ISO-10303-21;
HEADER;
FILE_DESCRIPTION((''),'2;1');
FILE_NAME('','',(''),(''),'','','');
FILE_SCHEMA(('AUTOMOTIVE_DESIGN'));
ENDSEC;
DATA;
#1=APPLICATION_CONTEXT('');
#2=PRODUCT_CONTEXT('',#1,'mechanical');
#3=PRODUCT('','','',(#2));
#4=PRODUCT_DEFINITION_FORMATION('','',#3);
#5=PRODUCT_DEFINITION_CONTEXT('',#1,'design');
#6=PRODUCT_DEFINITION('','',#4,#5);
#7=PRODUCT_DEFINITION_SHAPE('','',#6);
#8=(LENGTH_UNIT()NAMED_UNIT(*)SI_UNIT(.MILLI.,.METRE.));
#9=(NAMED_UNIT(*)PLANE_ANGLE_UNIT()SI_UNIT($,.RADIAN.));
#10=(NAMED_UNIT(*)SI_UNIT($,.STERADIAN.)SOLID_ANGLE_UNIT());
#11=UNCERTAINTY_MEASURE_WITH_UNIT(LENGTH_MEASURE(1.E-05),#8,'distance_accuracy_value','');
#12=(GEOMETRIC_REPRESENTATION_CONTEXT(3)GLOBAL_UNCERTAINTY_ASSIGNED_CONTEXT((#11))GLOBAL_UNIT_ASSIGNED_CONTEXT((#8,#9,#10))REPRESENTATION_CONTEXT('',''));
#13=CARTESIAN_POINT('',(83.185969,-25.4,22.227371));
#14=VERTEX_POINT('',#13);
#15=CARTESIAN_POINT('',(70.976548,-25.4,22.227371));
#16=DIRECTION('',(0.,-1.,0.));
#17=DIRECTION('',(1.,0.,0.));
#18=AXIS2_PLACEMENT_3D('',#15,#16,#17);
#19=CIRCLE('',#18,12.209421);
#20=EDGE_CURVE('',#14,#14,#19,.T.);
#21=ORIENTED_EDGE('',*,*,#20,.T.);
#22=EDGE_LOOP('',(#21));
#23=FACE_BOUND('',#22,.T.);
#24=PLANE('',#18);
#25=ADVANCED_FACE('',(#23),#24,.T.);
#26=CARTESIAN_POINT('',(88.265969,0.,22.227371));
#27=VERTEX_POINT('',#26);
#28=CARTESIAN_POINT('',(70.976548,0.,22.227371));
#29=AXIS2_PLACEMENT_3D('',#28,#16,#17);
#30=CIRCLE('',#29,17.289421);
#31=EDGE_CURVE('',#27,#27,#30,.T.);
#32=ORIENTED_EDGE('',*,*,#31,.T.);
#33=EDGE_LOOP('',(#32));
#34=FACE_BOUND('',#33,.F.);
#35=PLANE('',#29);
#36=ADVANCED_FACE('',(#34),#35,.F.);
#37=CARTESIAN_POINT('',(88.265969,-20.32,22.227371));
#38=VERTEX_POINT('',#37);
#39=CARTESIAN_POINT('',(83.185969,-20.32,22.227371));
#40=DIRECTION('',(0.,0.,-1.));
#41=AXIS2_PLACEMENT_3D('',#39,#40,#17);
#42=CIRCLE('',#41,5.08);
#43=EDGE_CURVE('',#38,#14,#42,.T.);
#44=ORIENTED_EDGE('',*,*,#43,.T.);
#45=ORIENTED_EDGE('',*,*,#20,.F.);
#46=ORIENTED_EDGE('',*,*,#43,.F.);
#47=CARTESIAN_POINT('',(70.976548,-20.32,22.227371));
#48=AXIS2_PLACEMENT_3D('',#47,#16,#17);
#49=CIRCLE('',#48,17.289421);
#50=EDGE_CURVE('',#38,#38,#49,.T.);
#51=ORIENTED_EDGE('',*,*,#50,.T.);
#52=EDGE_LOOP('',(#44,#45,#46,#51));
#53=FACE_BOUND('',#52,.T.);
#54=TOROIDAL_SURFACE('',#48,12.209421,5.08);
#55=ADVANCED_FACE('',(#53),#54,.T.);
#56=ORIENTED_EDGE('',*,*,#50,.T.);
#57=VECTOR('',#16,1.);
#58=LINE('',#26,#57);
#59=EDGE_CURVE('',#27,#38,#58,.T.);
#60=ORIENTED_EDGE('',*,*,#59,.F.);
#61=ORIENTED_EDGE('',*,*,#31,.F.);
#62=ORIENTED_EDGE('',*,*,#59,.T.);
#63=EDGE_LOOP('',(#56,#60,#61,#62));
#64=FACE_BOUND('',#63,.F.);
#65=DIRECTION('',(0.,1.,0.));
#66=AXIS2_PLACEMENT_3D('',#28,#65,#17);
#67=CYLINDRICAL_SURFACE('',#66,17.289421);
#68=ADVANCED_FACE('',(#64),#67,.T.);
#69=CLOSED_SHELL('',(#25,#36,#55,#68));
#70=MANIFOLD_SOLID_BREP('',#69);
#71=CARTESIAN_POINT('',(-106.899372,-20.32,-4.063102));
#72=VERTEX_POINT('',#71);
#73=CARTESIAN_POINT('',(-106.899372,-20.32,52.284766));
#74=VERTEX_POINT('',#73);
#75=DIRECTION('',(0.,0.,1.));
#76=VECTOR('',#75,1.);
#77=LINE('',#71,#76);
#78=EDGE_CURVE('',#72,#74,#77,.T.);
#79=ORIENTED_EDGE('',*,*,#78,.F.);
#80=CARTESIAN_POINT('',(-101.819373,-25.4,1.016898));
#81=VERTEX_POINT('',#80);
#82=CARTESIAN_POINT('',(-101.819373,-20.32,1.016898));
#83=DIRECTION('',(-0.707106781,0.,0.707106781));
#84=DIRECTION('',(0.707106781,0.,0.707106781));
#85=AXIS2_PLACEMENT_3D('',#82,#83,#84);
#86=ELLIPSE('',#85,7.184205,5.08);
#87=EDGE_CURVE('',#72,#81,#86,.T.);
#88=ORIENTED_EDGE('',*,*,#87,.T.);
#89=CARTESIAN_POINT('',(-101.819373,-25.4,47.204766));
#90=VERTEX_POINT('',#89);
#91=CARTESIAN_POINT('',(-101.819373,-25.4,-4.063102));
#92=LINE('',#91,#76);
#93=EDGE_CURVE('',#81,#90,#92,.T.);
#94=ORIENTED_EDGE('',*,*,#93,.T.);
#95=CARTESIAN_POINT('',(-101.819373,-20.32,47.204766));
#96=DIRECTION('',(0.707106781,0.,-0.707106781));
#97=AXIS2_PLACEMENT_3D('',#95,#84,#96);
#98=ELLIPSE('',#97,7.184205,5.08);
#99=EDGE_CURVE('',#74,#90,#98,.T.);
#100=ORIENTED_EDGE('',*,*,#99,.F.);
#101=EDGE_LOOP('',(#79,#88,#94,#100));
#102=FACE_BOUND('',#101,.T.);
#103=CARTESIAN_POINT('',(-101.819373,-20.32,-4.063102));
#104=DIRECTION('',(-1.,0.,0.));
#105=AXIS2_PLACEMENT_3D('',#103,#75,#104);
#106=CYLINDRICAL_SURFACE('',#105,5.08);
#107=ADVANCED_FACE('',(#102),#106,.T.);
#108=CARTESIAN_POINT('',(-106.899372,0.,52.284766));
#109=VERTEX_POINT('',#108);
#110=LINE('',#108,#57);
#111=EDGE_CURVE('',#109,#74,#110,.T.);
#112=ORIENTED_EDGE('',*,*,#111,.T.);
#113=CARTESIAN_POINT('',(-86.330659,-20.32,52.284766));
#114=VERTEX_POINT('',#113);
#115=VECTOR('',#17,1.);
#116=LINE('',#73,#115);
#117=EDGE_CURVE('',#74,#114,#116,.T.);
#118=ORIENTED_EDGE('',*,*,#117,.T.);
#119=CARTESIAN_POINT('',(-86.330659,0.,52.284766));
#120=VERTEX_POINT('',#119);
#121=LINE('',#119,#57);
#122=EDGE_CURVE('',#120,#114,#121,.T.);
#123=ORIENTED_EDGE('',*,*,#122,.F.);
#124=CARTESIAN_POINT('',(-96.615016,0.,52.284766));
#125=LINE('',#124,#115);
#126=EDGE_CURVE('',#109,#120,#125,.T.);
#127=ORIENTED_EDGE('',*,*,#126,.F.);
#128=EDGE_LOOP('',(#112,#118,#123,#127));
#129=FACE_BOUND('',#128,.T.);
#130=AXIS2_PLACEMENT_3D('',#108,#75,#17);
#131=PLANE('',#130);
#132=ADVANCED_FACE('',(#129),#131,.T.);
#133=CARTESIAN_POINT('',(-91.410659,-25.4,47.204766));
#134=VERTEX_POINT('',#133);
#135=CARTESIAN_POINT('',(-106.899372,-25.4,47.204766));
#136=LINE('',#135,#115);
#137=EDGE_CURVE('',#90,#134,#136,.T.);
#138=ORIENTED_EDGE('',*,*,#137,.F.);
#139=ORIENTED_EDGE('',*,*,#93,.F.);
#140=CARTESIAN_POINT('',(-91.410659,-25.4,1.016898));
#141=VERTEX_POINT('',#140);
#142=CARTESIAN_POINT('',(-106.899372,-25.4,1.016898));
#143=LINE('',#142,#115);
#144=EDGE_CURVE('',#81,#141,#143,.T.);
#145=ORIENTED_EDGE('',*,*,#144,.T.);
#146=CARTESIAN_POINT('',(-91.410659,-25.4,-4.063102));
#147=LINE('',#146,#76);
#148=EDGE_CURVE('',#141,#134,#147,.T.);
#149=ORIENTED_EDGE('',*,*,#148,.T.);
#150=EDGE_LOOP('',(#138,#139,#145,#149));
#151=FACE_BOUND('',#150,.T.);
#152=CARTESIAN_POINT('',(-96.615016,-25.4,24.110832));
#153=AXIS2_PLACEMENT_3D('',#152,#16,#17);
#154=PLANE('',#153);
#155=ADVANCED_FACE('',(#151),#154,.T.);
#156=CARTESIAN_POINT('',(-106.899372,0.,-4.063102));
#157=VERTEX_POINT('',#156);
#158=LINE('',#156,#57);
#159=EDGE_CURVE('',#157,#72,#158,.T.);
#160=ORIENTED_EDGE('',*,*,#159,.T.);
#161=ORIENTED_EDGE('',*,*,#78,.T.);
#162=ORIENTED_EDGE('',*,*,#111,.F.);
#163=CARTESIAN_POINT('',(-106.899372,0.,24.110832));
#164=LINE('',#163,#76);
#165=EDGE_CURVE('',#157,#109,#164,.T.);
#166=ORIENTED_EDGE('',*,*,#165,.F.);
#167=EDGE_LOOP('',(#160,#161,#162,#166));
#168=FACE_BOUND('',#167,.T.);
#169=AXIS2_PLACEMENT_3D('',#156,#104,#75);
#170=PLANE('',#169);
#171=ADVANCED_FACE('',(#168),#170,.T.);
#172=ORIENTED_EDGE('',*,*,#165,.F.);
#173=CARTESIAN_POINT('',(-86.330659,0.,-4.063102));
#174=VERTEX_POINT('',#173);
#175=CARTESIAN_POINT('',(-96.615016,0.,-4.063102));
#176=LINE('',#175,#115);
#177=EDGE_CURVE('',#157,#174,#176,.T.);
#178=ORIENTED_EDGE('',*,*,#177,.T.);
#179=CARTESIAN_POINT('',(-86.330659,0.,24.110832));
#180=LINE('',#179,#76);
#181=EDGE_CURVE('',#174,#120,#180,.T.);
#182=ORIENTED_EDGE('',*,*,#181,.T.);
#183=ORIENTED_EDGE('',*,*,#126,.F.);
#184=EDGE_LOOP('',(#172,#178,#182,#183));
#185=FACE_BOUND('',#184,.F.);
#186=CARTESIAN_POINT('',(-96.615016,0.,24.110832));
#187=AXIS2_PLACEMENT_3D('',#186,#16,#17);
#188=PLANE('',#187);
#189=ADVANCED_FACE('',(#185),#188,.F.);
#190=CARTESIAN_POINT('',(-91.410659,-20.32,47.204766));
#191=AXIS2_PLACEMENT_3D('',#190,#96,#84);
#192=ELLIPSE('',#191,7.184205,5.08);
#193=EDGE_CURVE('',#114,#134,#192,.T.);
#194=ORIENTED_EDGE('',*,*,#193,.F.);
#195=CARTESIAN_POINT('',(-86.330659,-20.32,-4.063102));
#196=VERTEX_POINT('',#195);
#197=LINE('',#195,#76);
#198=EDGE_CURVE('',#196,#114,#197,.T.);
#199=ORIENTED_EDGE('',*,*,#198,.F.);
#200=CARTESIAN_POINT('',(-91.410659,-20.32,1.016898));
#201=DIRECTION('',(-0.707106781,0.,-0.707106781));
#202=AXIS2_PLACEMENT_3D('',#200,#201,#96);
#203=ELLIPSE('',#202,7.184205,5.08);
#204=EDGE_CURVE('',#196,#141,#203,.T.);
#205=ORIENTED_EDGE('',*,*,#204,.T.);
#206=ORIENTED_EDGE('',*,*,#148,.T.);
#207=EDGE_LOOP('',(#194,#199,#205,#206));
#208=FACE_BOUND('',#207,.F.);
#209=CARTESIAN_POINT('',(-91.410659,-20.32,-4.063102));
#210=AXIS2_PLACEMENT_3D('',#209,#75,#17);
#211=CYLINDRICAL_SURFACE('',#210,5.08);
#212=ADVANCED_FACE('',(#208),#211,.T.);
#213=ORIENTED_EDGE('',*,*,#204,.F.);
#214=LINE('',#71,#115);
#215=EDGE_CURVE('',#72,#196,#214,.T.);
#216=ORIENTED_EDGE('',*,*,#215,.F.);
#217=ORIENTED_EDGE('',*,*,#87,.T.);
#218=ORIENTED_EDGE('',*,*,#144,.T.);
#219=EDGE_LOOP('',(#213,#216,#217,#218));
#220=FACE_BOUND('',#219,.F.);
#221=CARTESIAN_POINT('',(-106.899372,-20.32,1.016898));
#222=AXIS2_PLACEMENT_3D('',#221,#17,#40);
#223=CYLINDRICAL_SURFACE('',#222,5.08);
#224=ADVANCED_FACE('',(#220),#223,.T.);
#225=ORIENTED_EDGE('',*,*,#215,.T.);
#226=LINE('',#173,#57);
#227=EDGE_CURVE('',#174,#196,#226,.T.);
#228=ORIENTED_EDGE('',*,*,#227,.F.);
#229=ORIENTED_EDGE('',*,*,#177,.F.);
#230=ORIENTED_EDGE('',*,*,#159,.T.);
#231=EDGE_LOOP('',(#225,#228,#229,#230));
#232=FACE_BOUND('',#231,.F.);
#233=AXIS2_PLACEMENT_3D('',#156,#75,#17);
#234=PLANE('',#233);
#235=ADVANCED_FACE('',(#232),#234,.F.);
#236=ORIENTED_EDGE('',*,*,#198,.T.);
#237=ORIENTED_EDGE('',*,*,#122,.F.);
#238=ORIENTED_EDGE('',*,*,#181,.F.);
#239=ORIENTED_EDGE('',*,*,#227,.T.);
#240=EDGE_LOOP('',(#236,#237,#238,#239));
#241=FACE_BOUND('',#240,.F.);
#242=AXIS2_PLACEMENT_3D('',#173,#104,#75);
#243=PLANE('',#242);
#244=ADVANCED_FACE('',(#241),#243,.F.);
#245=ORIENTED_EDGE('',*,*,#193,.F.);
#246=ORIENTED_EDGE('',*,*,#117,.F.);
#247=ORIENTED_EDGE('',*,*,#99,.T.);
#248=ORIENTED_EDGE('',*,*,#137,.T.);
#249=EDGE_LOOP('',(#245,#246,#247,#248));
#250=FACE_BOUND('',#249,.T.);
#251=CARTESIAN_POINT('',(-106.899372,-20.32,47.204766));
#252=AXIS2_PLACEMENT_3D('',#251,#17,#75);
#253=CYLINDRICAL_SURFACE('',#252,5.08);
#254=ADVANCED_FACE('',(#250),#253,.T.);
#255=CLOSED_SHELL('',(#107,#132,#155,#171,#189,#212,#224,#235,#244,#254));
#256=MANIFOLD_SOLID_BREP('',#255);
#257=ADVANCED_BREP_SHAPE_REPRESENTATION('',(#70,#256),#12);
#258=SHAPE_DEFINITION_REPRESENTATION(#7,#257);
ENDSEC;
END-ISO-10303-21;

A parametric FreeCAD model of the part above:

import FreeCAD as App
import Part
import Sketcher
Q = App.Units.Quantity


def edges_at(feature, points):
    """Names of the edges that pass closest to the given points."""
    edges = feature.Shape.Edges
    near = lambda p: min(range(len(edges)), key=lambda i: edges[i].distToShape(Part.Vertex(*p))[0])
    return sorted({f"Edge{near(p) + 1}" for p in points})

doc = App.newDocument("Part")
body = doc.addObject("PartDesign::Body", "Body")
body.AllowCompound = True

sketch1 = body.newObject("Sketcher::SketchObject", "Sketch")
sketch1.AttachmentSupport = (doc.getObject("XZ_Plane"), [""])
sketch1.MapMode = "FlatFace"
sketch1.addGeometry([
    Part.LineSegment(App.Vector(-107, 52, 0), App.Vector(-107, -4, 0)),
    Part.LineSegment(App.Vector(-107, -4, 0), App.Vector(-86, -4, 0)),
    Part.LineSegment(App.Vector(-86, -4, 0), App.Vector(-86, 52, 0)),
    Part.LineSegment(App.Vector(-86, 52, 0), App.Vector(-107, 52, 0)),
    Part.Circle(App.Vector(71, 22, 0), App.Vector(0, 0, 1), 17),
], False)
sketch1.addConstraint([
    Sketcher.Constraint("Coincident", 0, 2, 1, 1),
    Sketcher.Constraint("Coincident", 1, 2, 2, 1),
    Sketcher.Constraint("Coincident", 2, 2, 3, 1),
    Sketcher.Constraint("Coincident", 3, 2, 0, 1),
    Sketcher.Constraint("Vertical", 0),
    Sketcher.Constraint("Horizontal", 1),
    Sketcher.Constraint("Vertical", 2),
    Sketcher.Constraint("Horizontal", 3),
    Sketcher.Constraint("Diameter", 4, Q("34.578842 mm")),
    Sketcher.Constraint("DistanceY", 0, 2, -1, 1, Q("4.063102 mm")),
    Sketcher.Constraint("DistanceX", 1, 1, 1, 2, Q("20.568713 mm")),
    Sketcher.Constraint("DistanceY", 0, 2, 0, 1, Q("56.347868 mm")),
    Sketcher.Constraint("DistanceY", -1, 1, 4, 3, Q("22.227371 mm")),
    Sketcher.Constraint("DistanceX", 1, 2, -1, 1, Q("86.330659 mm")),
    Sketcher.Constraint("DistanceX", 0, 2, 4, 3, Q("177.875921 mm")),
])
pad1 = body.newObject("PartDesign::Pad", "Pad")
pad1.Profile = sketch1
pad1.Length = Q("1 in")
doc.recompute()

fillet = body.newObject("PartDesign::Fillet", "Fillet")
fillet.Base = (pad1, edges_at(pad1, [
    (-96.615, -25.4, 52.285),
    (-106.899, -25.4, 24.111),
    (-96.615, -25.4, -4.063),
    (-86.331, -25.4, 24.111),
    (53.687, -25.4, 22.227),
]))
fillet.Radius = Q("0.2 in")

doc.recompute()
